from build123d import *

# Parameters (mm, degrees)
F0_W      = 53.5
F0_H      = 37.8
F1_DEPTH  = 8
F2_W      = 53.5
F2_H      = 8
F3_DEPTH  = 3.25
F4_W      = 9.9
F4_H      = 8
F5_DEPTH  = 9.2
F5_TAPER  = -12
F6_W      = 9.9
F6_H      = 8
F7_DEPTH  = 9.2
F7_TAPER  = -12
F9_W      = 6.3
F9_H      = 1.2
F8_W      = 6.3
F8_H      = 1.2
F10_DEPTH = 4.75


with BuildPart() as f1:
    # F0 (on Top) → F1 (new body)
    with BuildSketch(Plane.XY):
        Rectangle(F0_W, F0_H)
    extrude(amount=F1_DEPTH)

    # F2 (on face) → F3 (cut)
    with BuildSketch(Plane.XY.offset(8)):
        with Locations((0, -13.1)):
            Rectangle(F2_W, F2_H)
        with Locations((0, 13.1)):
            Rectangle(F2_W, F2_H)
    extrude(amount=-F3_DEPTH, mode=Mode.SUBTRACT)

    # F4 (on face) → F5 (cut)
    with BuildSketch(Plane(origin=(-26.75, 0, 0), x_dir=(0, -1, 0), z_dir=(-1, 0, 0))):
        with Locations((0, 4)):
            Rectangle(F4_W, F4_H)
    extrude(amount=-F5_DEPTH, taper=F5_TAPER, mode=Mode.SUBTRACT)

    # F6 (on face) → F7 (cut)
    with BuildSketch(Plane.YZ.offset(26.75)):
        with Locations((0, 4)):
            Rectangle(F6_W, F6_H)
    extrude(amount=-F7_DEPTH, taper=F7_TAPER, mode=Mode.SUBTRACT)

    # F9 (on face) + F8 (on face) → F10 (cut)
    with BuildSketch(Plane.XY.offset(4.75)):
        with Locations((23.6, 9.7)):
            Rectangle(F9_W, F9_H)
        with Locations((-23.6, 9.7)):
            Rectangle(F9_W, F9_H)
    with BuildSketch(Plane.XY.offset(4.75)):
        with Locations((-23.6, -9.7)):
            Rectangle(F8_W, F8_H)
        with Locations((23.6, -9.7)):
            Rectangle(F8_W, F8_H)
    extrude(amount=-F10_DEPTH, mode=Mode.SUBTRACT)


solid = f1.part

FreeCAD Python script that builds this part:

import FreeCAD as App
import Part
import Sketcher

V = App.Vector
Q = App.Units.Quantity


def add_polygon(sketch, points):
    """Adds a closed chain of lines whose ends are joined by coincident constraints."""
    first, n = sketch.GeometryCount, len(points)
    for a, b in zip(points, points[1:] + points[:1]):
        sketch.addGeometry(Part.LineSegment(App.Vector(*a, 0), App.Vector(*b, 0)), False)
    for i in range(n):
        sketch.addConstraint(Sketcher.Constraint("Coincident", first + i, 2, first + (i + 1) % n, 1))

doc = App.newDocument("Part")
body = doc.addObject("PartDesign::Body", "Body")

sketch1 = body.newObject("Sketcher::SketchObject", "Sketch")
sketch1.AttachmentSupport = (doc.getObject("XY_Plane"), [""])
sketch1.MapMode = "FlatFace"
add_polygon(sketch1, [(-27, 19), (-27, -19), (27, -19), (27, 19)])
sketch1.addConstraint([
    Sketcher.Constraint("Vertical", 0),
    Sketcher.Constraint("Horizontal", 1),
    Sketcher.Constraint("Vertical", 2),
    Sketcher.Constraint("Horizontal", 3),
    Sketcher.Constraint("Symmetric", 0, 2, 2, 2, -1, 1),
    Sketcher.Constraint("DistanceX", 1, 1, 1, 2, Q("53.5 mm")),
    Sketcher.Constraint("DistanceY", 0, 2, 0, 1, Q("37.8 mm")),
])
pad1 = body.newObject("PartDesign::Pad", "Pad")
pad1.Profile = sketch1
pad1.Length = 8

sketch2 = body.newObject("Sketcher::SketchObject", "Sketch001")
sketch2.AttachmentSupport = (doc.getObject("XY_Plane"), [""])
sketch2.MapMode = "FlatFace"
sketch2.AttachmentOffset = App.Placement(V(0, 0, 8), App.Rotation())
add_polygon(sketch2, [(-27, -9), (-27, -17), (27, -17), (27, -9)])
add_polygon(sketch2, [(-27, 17), (-27, 9), (27, 9), (27, 17)])
sketch2.addConstraint([
    Sketcher.Constraint("Vertical", 0),
    Sketcher.Constraint("Horizontal", 1),
    Sketcher.Constraint("Vertical", 2),
    Sketcher.Constraint("Horizontal", 3),
    Sketcher.Constraint("Vertical", 4),
    Sketcher.Constraint("Horizontal", 5),
    Sketcher.Constraint("Vertical", 6),
    Sketcher.Constraint("Horizontal", 7),
    Sketcher.Constraint("Symmetric", 2, 2, 4, 2, -1, 1),
    Sketcher.Constraint("Symmetric", 0, 2, 6, 2, -1, 1),
    Sketcher.Constraint("Vertical", 3, 2, 4, 2),
    Sketcher.Constraint("DistanceY", 0, 2, 0, 1, Q("8 mm")),
    Sketcher.Constraint("DistanceX", 1, 1, 1, 2, Q("53.5 mm")),
    Sketcher.Constraint("DistanceY", 0, 2, -1, 1, Q("17.1 mm")),
])
pocket1 = body.newObject("PartDesign::Pocket", "Pocket")
pocket1.Profile = sketch2
pocket1.Length = 3.25

sketch3 = body.newObject("Sketcher::SketchObject", "Sketch002")
sketch3.AttachmentSupport = (doc.getObject("YZ_Plane"), [""])
sketch3.MapMode = "FlatFace"
sketch3.AttachmentOffset = App.Placement(V(0, 0, -26.75), App.Rotation())
add_polygon(sketch3, [(5, 8), (5, 0), (-5, 0), (-5, 8)])
sketch3.addConstraint([
    Sketcher.Constraint("Vertical", 0),
    Sketcher.Constraint("Horizontal", 1),
    Sketcher.Constraint("Vertical", 2),
    Sketcher.Constraint("Horizontal", 3),
    Sketcher.Constraint("Symmetric", 0, 2, 1, 2, -1, 1),
    Sketcher.Constraint("DistanceY", 0, 2, 0, 1, Q("8 mm")),
    Sketcher.Constraint("DistanceX", 1, 2, 1, 1, Q("9.9 mm")),
])
pocket2 = body.newObject("PartDesign::Pocket", "Pocket001")
pocket2.Profile = sketch3
pocket2.Length = 9.2
pocket2.Reversed = True
pocket2.TaperAngle = 12

sketch4 = body.newObject("Sketcher::SketchObject", "Sketch003")
sketch4.AttachmentSupport = (doc.getObject("YZ_Plane"), [""])
sketch4.MapMode = "FlatFace"
sketch4.AttachmentOffset = App.Placement(V(0, 0, 26.75), App.Rotation())
add_polygon(sketch4, [(-5, 8), (-5, 0), (5, 0), (5, 8)])
sketch4.addConstraint([
    Sketcher.Constraint("Vertical", 0),
    Sketcher.Constraint("Horizontal", 1),
    Sketcher.Constraint("Vertical", 2),
    Sketcher.Constraint("Horizontal", 3),
    Sketcher.Constraint("Symmetric", 0, 2, 1, 2, -1, 1),
    Sketcher.Constraint("DistanceY", 0, 2, 0, 1, Q("8 mm")),
    Sketcher.Constraint("DistanceX", 1, 1, 1, 2, Q("9.9 mm")),
])
pocket3 = body.newObject("PartDesign::Pocket", "Pocket002")
pocket3.Profile = sketch4
pocket3.Length = 9.2
pocket3.TaperAngle = 12

sketch5 = body.newObject("Sketcher::SketchObject", "Sketch004")
sketch5.AttachmentSupport = (doc.getObject("XY_Plane"), [""])
sketch5.MapMode = "FlatFace"
sketch5.AttachmentOffset = App.Placement(V(0, 0, 4.75), App.Rotation())
add_polygon(sketch5, [(20.4, 10.3), (20.4, 9.1), (26.8, 9.1), (26.8, 10.3)])
add_polygon(sketch5, [(-26.8, 10.3), (-26.8, 9.1), (-20.4, 9.1), (-20.4, 10.3)])
add_polygon(sketch5, [(-26.8, -9.1), (-26.8, -10.3), (-20.4, -10.3), (-20.4, -9.1)])
add_polygon(sketch5, [(20.4, -9.1), (20.4, -10.3), (26.8, -10.3), (26.8, -9.1)])
sketch5.addConstraint([
    Sketcher.Constraint("Vertical", 0),
    Sketcher.Constraint("Horizontal", 1),
    Sketcher.Constraint("Vertical", 2),
    Sketcher.Constraint("Horizontal", 3),
    Sketcher.Constraint("Vertical", 4),
    Sketcher.Constraint("Horizontal", 5),
    Sketcher.Constraint("Vertical", 6),
    Sketcher.Constraint("Horizontal", 7),
    Sketcher.Constraint("Vertical", 8),
    Sketcher.Constraint("Horizontal", 9),
    Sketcher.Constraint("Vertical", 10),
    Sketcher.Constraint("Horizontal", 11),
    Sketcher.Constraint("Vertical", 12),
    Sketcher.Constraint("Horizontal", 13),
    Sketcher.Constraint("Vertical", 14),
    Sketcher.Constraint("Horizontal", 15),
    Sketcher.Constraint("Symmetric", 2, 2, 8, 2, -1, 1),
    Sketcher.Constraint("Symmetric", 0, 2, 10, 2, -1, 1),
    Sketcher.Constraint("Symmetric", 6, 2, 12, 2, -1, 1),
    Sketcher.Constraint("Symmetric", 4, 2, 14, 2, -1, 1),
    Sketcher.Constraint("Symmetric", 1, 2, 4, 2, -2),
    Sketcher.Constraint("Symmetric", 3, 2, 6, 2, -2),
    Sketcher.Constraint("DistanceX", 1, 1, 1, 2, Q("6.3 mm")),
    Sketcher.Constraint("DistanceY", 0, 2, 0, 1, Q("1.2 mm")),
    Sketcher.Constraint("DistanceY", -1, 1, 0, 2, Q("9.1 mm")),
    Sketcher.Constraint("DistanceX", 4, 2, 0, 2, Q("47.2 mm")),
])
pocket4 = body.newObject("PartDesign::Pocket", "Pocket003")
pocket4.Profile = sketch5
pocket4.Length = 4.75

doc.recompute()
